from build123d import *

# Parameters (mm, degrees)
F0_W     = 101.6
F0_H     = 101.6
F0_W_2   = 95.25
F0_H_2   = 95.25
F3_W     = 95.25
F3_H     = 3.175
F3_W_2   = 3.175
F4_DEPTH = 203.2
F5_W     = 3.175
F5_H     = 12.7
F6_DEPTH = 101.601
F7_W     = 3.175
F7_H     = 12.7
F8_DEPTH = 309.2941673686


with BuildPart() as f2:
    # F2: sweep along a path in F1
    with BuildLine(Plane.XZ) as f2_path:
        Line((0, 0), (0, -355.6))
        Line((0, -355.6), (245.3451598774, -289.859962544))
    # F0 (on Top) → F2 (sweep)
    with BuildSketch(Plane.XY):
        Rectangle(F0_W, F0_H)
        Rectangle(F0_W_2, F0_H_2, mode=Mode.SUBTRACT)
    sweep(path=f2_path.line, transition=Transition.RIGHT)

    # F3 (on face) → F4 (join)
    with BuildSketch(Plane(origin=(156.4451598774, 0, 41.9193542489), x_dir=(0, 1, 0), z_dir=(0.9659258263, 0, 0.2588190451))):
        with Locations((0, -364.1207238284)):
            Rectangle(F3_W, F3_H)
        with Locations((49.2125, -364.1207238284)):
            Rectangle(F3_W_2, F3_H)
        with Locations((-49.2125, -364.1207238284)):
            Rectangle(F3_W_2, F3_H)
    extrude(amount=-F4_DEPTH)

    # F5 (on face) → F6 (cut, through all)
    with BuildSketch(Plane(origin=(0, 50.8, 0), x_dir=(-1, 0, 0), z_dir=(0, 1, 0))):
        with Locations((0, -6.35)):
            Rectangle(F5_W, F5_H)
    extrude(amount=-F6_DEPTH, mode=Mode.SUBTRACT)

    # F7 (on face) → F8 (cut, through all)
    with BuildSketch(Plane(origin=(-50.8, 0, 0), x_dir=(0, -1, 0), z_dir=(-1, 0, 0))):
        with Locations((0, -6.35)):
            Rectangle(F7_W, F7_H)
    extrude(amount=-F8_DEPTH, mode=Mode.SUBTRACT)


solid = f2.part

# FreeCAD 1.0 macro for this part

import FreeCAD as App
import Part
import Sketcher
Q = App.Units.Quantity

doc = App.newDocument("Part")
params = doc.addObject("Spreadsheet::Sheet", "Params")
for row, (alias, value) in enumerate([
    ("sketch1_width", "4 in"),
    ("sketch1_width2", "3.75 in"),
    ("sketch2_height", "14 in"),
    ("sketch2_length", "10 in"),
    ("sketch3_width", "4 in"),
    ("sketch3_height", "0.125 in"),
    ("pad1_length", "8 in"),
    ("sketch4_height", "0.5 in"),
    ("sketch4_width", "0.125 in"),
    ("sketch5_height", "0.5 in"),
    ("sketch5_width", "0.125 in"),
], start=1):
    params.set(f"A{row}", alias)
    params.set(f"B{row}", "=" + value)
    params.setAlias(f"B{row}", alias)

body = doc.addObject("PartDesign::Body", "Body")

# Sketch on XY plane
sketch1 = doc.addObject("Sketcher::SketchObject", "Sketch")
body.addObject(sketch1)
sketch1.AttachmentSupport = (doc.XY_Plane, [""])
sketch1.MapMode = "FlatFace"
sketch1.addGeometry([
    Part.LineSegment(App.Vector(-50.8, 50.8, 0), App.Vector(-50.8, -50.8, 0)),  # 0
    Part.LineSegment(App.Vector(-50.8, -50.8, 0), App.Vector(50.8, -50.8, 0)),  # 1
    Part.LineSegment(App.Vector(50.8, -50.8, 0), App.Vector(50.8, 50.8, 0)),  # 2
    Part.LineSegment(App.Vector(50.8, 50.8, 0), App.Vector(-50.8, 50.8, 0)),  # 3
    Part.LineSegment(App.Vector(47.625, -47.625, 0), App.Vector(-47.625, -47.625, 0)),  # 4
    Part.LineSegment(App.Vector(-47.625, -47.625, 0), App.Vector(-47.625, 47.625, 0)),  # 5
    Part.LineSegment(App.Vector(-47.625, 47.625, 0), App.Vector(47.625, 47.625, 0)),  # 6
    Part.LineSegment(App.Vector(47.625, 47.625, 0), App.Vector(47.625, -47.625, 0)),  # 7
], False)
sketch1.addConstraint([
    Sketcher.Constraint("Coincident", 0, 2, 1, 1),
    Sketcher.Constraint("Coincident", 1, 2, 2, 1),
    Sketcher.Constraint("Coincident", 2, 2, 3, 1),
    Sketcher.Constraint("Coincident", 3, 2, 0, 1),
    Sketcher.Constraint("Coincident", 4, 2, 5, 1),
    Sketcher.Constraint("Coincident", 5, 2, 6, 1),
    Sketcher.Constraint("Coincident", 6, 2, 7, 1),
    Sketcher.Constraint("Coincident", 7, 2, 4, 1),
    Sketcher.Constraint("Vertical", 0),
    Sketcher.Constraint("Horizontal", 1),
    Sketcher.Constraint("Vertical", 2),
    Sketcher.Constraint("Horizontal", 3),
    Sketcher.Constraint("Horizontal", 4),
    Sketcher.Constraint("Vertical", 5),
    Sketcher.Constraint("Horizontal", 6),
    Sketcher.Constraint("Vertical", 7),
    Sketcher.Constraint("Symmetric", 0, 2, 2, 2, -1, 1),
    Sketcher.Constraint("Symmetric", 4, 2, 6, 2, -1, 1),
    Sketcher.Constraint("Equal", 3, 0),
    Sketcher.Constraint("Equal", 6, 5),
    Sketcher.Constraint("DistanceX", 1, 1, 1, 2, Q("4 in")),
    Sketcher.Constraint("DistanceX", 4, 2, 4, 1, Q("3.75 in")),
])
sketch1.setExpression("Constraints[20]", "Params.sketch1_width")
sketch1.setExpression("Constraints[21]", "Params.sketch1_width2")

# Sketch on XZ plane
sketch2 = doc.addObject("Sketcher::SketchObject", "Sketch001")
body.addObject(sketch2)
sketch2.AttachmentSupport = (doc.XZ_Plane, [""])
sketch2.MapMode = "FlatFace"
sketch2.addGeometry([
    Part.LineSegment(App.Vector(0, 0, 0), App.Vector(0, -355.6, 0)),
    Part.LineSegment(App.Vector(0, -355.6, 0), App.Vector(245.34516, -289.859963, 0)),
], False)
sketch2.addConstraint([
    Sketcher.Constraint("Coincident", 0, 2, 1, 1),
    Sketcher.Constraint("Vertical", 0),
    Sketcher.Constraint("Coincident", 0, 1, -1, 1),
    Sketcher.Constraint("DistanceY", 0, 2, 0, 1, Q("14 in")),
    Sketcher.Constraint("Distance", 1, Q("10 in")),
    Sketcher.Constraint("Angle", 1, Q("15 deg")),
])
sketch2.setExpression("Constraints[3]", "Params.sketch2_height")
sketch2.setExpression("Constraints[4]", "Params.sketch2_length")
doc.recompute()

additivepipe = doc.addObject("PartDesign::AdditivePipe", "AdditivePipe")
body.addObject(additivepipe)
additivepipe.Profile = sketch1
additivepipe.Spine = (sketch2, ["Edge1", "Edge2"])
additivepipe.Transition = "Right corner"

# Sketch on an angled plane
sketch3 = doc.addObject("Sketcher::SketchObject", "Sketch002")
body.addObject(sketch3)
sketch3.Placement = App.Placement(App.Vector(156.44516, 0, 41.919354), App.Rotation(App.Vector(0, 1, 0), App.Vector(-0.258819045, 0, 0.965925826), App.Vector(0.965925826, 0, 0.258819045), "ZXY"))
sketch3.addGeometry([
    Part.LineSegment(App.Vector(50.8, -365.708224, 0), App.Vector(50.8, -362.533224, 0)),
    Part.LineSegment(App.Vector(50.8, -362.533224, 0), App.Vector(-50.8, -362.533224, 0)),
    Part.LineSegment(App.Vector(-50.8, -362.533224, 0), App.Vector(-50.8, -365.708224, 0)),
    Part.LineSegment(App.Vector(-50.8, -365.708224, 0), App.Vector(50.8, -365.708224, 0)),
], False)
sketch3.addConstraint([
    Sketcher.Constraint("Coincident", 0, 2, 1, 1),
    Sketcher.Constraint("Coincident", 1, 2, 2, 1),
    Sketcher.Constraint("Coincident", 2, 2, 3, 1),
    Sketcher.Constraint("Coincident", 3, 2, 0, 1),
    Sketcher.Constraint("Vertical", 0),
    Sketcher.Constraint("Horizontal", 1),
    Sketcher.Constraint("Vertical", 2),
    Sketcher.Constraint("Horizontal", 3),
    Sketcher.Constraint("DistanceX", 1, 2, 1, 1, Q("4 in")),
    Sketcher.Constraint("DistanceX", -1, 1, 0, 2, Q("2 in")),
    Sketcher.Constraint("DistanceY", 0, 1, 0, 2, Q("0.125 in")),
    Sketcher.Constraint("DistanceY", 0, 2, -1, 1, 362.533224),
])
sketch3.setExpression("Constraints[8]", "Params.sketch3_width")
sketch3.setExpression("Constraints[10]", "Params.sketch3_height")
pad1 = doc.addObject("PartDesign::Pad", "Pad")
body.addObject(pad1)
pad1.Profile = sketch3
pad1.setExpression("Length", "Params.pad1_length")
pad1.Reversed = True

# Sketch on XZ plane
sketch4 = doc.addObject("Sketcher::SketchObject", "Sketch003")
body.addObject(sketch4)
sketch4.AttachmentSupport = (doc.XZ_Plane, [""])
sketch4.MapMode = "FlatFace"
sketch4.AttachmentOffset = App.Placement(App.Vector(0, 0, -2 * 25.4), App.Rotation())
sketch4.addGeometry([
    Part.LineSegment(App.Vector(1.5875, 0, 0), App.Vector(1.5875, -12.7, 0)),
    Part.LineSegment(App.Vector(1.5875, -12.7, 0), App.Vector(-1.5875, -12.7, 0)),
    Part.LineSegment(App.Vector(-1.5875, -12.7, 0), App.Vector(-1.5875, 0, 0)),
    Part.LineSegment(App.Vector(-1.5875, 0, 0), App.Vector(1.5875, 0, 0)),
], False)
sketch4.addConstraint([
    Sketcher.Constraint("Coincident", 0, 2, 1, 1),
    Sketcher.Constraint("Coincident", 1, 2, 2, 1),
    Sketcher.Constraint("Coincident", 2, 2, 3, 1),
    Sketcher.Constraint("Coincident", 3, 2, 0, 1),
    Sketcher.Constraint("Vertical", 0),
    Sketcher.Constraint("Horizontal", 1),
    Sketcher.Constraint("Vertical", 2),
    Sketcher.Constraint("Horizontal", 3),
    Sketcher.Constraint("Symmetric", 2, 2, 3, 2, -1, 1),
    Sketcher.Constraint("DistanceY", 0, 2, 0, 1, Q("0.5 in")),
    Sketcher.Constraint("DistanceX", 1, 2, 1, 1, Q("0.125 in")),
])
sketch4.setExpression("Constraints[9]", "Params.sketch4_height")
sketch4.setExpression("Constraints[10]", "Params.sketch4_width")
pocket1 = doc.addObject("PartDesign::Pocket", "Pocket")
body.addObject(pocket1)
pocket1.Profile = sketch4
pocket1.Type = "ThroughAll"
pocket1.Reversed = True

# Sketch on YZ plane
sketch5 = doc.addObject("Sketcher::SketchObject", "Sketch004")
body.addObject(sketch5)
sketch5.AttachmentSupport = (doc.YZ_Plane, [""])
sketch5.MapMode = "FlatFace"
sketch5.AttachmentOffset = App.Placement(App.Vector(0, 0, -2 * 25.4), App.Rotation())
sketch5.addGeometry([
    Part.LineSegment(App.Vector(1.5875, 0, 0), App.Vector(1.5875, -12.7, 0)),
    Part.LineSegment(App.Vector(1.5875, -12.7, 0), App.Vector(-1.5875, -12.7, 0)),
    Part.LineSegment(App.Vector(-1.5875, -12.7, 0), App.Vector(-1.5875, 0, 0)),
    Part.LineSegment(App.Vector(-1.5875, 0, 0), App.Vector(1.5875, 0, 0)),
], False)
sketch5.addConstraint([
    Sketcher.Constraint("Coincident", 0, 2, 1, 1),
    Sketcher.Constraint("Coincident", 1, 2, 2, 1),
    Sketcher.Constraint("Coincident", 2, 2, 3, 1),
    Sketcher.Constraint("Coincident", 3, 2, 0, 1),
    Sketcher.Constraint("Vertical", 0),
    Sketcher.Constraint("Horizontal", 1),
    Sketcher.Constraint("Vertical", 2),
    Sketcher.Constraint("Horizontal", 3),
    Sketcher.Constraint("Symmetric", 2, 2, 3, 2, -1, 1),
    Sketcher.Constraint("DistanceY", 0, 2, 0, 1, Q("0.5 in")),
    Sketcher.Constraint("DistanceX", 1, 2, 1, 1, Q("0.125 in")),
])
sketch5.setExpression("Constraints[9]", "Params.sketch5_height")
sketch5.setExpression("Constraints[10]", "Params.sketch5_width")
pocket2 = doc.addObject("PartDesign::Pocket", "Pocket001")
body.addObject(pocket2)
pocket2.Profile = sketch5
pocket2.Type = "ThroughAll"
pocket2.Reversed = True

doc.recompute()
